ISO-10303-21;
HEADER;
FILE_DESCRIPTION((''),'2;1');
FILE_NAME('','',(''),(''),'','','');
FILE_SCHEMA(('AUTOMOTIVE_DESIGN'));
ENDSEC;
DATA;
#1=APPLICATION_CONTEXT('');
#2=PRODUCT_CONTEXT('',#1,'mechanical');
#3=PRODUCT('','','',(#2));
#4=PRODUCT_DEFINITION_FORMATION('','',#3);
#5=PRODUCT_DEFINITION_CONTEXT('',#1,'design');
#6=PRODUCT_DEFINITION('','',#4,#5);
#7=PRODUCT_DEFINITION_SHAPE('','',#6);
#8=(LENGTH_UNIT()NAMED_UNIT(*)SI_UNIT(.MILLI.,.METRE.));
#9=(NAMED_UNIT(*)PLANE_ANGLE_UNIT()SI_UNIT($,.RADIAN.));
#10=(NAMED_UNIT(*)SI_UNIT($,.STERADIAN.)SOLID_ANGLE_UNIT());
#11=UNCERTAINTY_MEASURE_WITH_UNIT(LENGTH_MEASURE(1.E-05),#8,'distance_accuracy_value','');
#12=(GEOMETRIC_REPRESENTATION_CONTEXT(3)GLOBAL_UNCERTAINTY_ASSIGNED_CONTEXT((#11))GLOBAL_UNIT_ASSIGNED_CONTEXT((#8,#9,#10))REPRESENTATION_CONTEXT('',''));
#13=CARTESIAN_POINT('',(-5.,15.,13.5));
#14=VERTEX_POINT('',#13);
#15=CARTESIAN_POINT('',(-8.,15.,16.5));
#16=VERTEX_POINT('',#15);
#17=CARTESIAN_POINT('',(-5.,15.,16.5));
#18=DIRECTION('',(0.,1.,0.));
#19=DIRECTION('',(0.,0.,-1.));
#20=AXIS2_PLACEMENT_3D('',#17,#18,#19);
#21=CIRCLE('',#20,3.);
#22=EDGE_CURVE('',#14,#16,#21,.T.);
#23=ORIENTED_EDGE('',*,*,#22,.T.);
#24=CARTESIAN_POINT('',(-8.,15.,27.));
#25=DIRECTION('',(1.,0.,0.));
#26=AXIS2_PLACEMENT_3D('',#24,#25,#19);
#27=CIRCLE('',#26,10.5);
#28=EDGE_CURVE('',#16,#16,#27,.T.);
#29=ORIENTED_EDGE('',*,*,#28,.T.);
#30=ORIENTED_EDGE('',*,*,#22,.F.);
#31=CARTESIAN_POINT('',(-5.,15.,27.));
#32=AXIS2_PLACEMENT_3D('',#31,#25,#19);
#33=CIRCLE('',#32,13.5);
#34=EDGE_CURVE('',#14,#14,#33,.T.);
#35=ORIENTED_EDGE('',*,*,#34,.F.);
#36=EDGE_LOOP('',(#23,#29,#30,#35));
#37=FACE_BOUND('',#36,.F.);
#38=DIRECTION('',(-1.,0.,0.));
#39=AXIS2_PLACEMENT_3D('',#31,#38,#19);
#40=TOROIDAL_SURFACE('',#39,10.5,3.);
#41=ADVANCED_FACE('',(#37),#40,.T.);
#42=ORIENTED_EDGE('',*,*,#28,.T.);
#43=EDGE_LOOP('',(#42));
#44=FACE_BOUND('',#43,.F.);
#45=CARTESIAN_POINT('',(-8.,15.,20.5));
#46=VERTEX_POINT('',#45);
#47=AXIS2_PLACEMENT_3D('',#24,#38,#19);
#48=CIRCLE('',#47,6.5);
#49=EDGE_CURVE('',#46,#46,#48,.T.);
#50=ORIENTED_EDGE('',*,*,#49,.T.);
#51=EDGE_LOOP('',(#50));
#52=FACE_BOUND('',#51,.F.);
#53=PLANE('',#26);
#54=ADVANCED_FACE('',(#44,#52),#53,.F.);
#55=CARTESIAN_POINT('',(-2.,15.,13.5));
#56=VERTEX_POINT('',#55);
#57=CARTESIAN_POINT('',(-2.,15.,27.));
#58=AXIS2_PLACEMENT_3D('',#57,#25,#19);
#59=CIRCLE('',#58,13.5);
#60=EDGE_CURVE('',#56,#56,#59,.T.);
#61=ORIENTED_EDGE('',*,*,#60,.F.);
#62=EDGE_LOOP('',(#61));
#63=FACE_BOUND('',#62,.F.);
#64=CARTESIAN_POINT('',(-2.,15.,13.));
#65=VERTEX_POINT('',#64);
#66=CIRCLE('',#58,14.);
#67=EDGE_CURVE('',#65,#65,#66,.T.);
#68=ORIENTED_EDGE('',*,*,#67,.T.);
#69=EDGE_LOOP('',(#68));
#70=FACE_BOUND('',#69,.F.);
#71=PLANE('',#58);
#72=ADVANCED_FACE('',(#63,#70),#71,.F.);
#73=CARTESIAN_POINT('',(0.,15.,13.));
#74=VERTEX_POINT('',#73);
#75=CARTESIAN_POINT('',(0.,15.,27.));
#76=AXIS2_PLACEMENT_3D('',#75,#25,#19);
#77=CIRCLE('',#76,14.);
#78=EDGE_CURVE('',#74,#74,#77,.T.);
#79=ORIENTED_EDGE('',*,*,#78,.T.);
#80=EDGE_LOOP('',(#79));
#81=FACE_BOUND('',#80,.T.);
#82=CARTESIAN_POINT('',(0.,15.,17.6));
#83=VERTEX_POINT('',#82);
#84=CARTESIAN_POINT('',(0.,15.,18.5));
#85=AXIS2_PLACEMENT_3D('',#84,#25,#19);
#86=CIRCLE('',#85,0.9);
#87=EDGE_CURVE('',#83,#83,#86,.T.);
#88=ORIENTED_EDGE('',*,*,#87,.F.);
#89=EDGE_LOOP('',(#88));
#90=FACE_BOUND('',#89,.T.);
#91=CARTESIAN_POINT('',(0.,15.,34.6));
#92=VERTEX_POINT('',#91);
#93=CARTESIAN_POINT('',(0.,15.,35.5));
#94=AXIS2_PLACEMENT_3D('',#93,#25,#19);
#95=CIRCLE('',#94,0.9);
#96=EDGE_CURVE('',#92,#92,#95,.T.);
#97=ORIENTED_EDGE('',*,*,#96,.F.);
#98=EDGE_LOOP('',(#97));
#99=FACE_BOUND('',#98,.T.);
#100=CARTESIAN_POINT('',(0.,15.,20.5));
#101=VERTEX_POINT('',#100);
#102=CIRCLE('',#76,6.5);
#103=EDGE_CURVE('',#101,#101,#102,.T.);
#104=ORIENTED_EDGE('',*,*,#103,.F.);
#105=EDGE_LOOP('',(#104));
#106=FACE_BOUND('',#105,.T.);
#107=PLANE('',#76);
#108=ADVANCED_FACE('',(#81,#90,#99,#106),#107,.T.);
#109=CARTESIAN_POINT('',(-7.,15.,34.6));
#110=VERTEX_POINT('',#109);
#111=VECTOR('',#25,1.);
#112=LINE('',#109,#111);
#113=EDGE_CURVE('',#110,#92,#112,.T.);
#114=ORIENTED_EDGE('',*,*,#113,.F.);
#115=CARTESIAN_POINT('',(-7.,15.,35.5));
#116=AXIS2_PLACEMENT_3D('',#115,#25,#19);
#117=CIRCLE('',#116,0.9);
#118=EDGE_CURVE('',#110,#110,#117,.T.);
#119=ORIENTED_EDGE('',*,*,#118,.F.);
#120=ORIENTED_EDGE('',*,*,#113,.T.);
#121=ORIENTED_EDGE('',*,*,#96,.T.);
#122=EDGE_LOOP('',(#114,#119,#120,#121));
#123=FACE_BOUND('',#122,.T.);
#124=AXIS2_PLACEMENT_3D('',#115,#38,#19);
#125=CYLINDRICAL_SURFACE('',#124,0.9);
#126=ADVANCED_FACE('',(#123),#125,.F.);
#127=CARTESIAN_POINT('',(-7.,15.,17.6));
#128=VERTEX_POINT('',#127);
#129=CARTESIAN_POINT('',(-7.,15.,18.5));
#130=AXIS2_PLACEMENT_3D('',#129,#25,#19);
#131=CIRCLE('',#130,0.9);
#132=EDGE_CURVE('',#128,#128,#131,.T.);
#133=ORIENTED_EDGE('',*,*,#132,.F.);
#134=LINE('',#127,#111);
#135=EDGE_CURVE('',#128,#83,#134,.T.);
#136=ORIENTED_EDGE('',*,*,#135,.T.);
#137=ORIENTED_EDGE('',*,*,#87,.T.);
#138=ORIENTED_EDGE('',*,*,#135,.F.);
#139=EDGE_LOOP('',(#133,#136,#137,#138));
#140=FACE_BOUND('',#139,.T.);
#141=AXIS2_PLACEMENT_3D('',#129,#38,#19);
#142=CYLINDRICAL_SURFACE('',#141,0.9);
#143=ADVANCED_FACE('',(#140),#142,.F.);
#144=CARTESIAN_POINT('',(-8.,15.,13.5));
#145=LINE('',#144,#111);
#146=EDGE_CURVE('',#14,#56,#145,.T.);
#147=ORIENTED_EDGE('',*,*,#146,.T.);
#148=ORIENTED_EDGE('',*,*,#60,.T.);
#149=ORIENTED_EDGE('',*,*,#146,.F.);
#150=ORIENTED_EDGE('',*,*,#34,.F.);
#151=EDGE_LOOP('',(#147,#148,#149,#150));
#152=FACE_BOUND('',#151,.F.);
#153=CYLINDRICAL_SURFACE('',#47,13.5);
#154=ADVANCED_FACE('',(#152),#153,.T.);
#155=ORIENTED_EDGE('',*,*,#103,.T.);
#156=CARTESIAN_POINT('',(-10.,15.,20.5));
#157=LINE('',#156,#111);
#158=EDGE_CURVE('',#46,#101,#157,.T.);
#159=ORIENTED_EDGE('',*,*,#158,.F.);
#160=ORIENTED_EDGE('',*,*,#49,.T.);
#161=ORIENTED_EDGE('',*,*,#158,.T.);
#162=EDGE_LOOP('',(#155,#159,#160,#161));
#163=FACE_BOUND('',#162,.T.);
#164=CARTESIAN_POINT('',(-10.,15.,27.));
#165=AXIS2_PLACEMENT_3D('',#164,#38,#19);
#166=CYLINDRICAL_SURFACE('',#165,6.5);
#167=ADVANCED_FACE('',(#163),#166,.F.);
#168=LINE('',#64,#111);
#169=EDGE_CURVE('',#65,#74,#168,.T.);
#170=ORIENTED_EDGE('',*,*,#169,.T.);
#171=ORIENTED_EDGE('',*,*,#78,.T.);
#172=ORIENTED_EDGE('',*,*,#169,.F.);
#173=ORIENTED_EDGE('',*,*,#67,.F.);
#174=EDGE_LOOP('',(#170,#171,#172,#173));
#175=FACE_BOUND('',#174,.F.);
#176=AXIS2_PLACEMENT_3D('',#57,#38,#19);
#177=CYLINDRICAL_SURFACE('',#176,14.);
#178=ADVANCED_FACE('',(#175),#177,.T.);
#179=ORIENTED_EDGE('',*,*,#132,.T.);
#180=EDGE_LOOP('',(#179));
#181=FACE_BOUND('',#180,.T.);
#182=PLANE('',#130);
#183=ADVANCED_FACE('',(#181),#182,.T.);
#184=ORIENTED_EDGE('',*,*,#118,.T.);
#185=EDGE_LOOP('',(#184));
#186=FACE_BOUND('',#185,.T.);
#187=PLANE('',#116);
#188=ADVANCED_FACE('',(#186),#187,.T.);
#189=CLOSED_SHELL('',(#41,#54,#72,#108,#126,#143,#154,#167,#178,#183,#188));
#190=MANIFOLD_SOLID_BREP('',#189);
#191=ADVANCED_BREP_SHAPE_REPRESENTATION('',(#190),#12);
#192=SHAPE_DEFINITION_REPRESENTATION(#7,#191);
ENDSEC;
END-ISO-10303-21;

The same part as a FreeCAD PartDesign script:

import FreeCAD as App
import Part
import Sketcher

V = App.Vector
Q = App.Units.Quantity


def edges_at(feature, points):
    """Names of the edges that pass closest to the given points."""
    edges = feature.Shape.Edges
    near = lambda p: min(range(len(edges)), key=lambda i: edges[i].distToShape(Part.Vertex(*p))[0])
    return sorted({f"Edge{near(p) + 1}" for p in points})

doc = App.newDocument("Part")
body = doc.addObject("PartDesign::Body", "Body")

# Sketch on XY plane
sketch1 = doc.addObject("Sketcher::SketchObject", "Sketch")
body.addObject(sketch1)
sketch1.AttachmentSupport = (doc.XY_Plane, [""])
sketch1.MapMode = "FlatFace"
sketch1.addGeometry(Part.Circle(V(0, 0, 0), V(0, 0, 1), 6), False)
sketch1.addConstraint([
    Sketcher.Constraint("Coincident", 0, 3, -1, 1),
    Sketcher.Constraint("Diameter", 0, Q("13 mm")),
])
pad1 = doc.addObject("PartDesign::Pad", "Pad")
body.addObject(pad1)
pad1.Profile = sketch1
pad1.Length = 10
body2 = doc.addObject("PartDesign::Body", "Body001")
doc.recompute()

body.Placement = App.Placement(V(0, 0, 0), App.Rotation(V(0, 1, 0), 90))
boolean = doc.addObject("PartDesign::Boolean", "Boolean")
body2.addObject(boolean)
boolean.Type = "Fuse"
boolean.addObjects([body])
body3 = doc.addObject("PartDesign::Body", "Body002")
doc.recompute()

body2.Placement = App.Placement(V(-10, 15, 27), App.Rotation(V(0, 0, 1), 0))
boolean2 = doc.addObject("PartDesign::Boolean", "Boolean001")
body3.addObject(boolean2)
boolean2.Type = "Fuse"
boolean2.addObjects([body2])
body4 = doc.addObject("PartDesign::Body", "Body003")

# Sketch on XY plane
sketch2 = doc.addObject("Sketcher::SketchObject", "Sketch001")
body4.addObject(sketch2)
sketch2.AttachmentSupport = (doc.getObject("XY_Plane003"), [""])
sketch2.MapMode = "FlatFace"
sketch2.addGeometry(Part.Circle(V(0, 0, 0), V(0, 0, 1), 0.9), False)
sketch2.addConstraint([
    Sketcher.Constraint("Coincident", 0, 3, -1, 1),
    Sketcher.Constraint("Diameter", 0, Q("1.8 mm")),
])
pad2 = doc.addObject("PartDesign::Pad", "Pad001")
body4.addObject(pad2)
pad2.Profile = sketch2
pad2.Length = 7
body5 = doc.addObject("PartDesign::Body", "Body004")
doc.recompute()

body4.Placement = App.Placement(V(0, 0, 0), App.Rotation(V(0, 1, 0), 90))
boolean3 = doc.addObject("PartDesign::Boolean", "Boolean002")
body5.addObject(boolean3)
boolean3.Type = "Fuse"
boolean3.addObjects([body4])
body6 = doc.addObject("PartDesign::Body", "Body005")
doc.recompute()

body5.Placement = App.Placement(V(-7, 15, 35.5), App.Rotation(V(0, 0, 1), 0))
boolean4 = doc.addObject("PartDesign::Boolean", "Boolean003")
body6.addObject(boolean4)
boolean4.Type = "Fuse"
boolean4.addObjects([body5])
body7 = doc.addObject("PartDesign::Body", "Body006")

# Sketch on XY plane
sketch3 = doc.addObject("Sketcher::SketchObject", "Sketch002")
body7.addObject(sketch3)
sketch3.AttachmentSupport = (doc.getObject("XY_Plane006"), [""])
sketch3.MapMode = "FlatFace"
sketch3.addGeometry(Part.Circle(V(0, 0, 0), V(0, 0, 1), 0.9), False)
sketch3.addConstraint([
    Sketcher.Constraint("Coincident", 0, 3, -1, 1),
    Sketcher.Constraint("Diameter", 0, Q("1.8 mm")),
])
pad3 = doc.addObject("PartDesign::Pad", "Pad002")
body7.addObject(pad3)
pad3.Profile = sketch3
pad3.Length = 7
body8 = doc.addObject("PartDesign::Body", "Body007")
doc.recompute()

body7.Placement = App.Placement(V(0, 0, 0), App.Rotation(V(0, 1, 0), 90))
boolean5 = doc.addObject("PartDesign::Boolean", "Boolean004")
body8.addObject(boolean5)
boolean5.Type = "Fuse"
boolean5.addObjects([body7])
body9 = doc.addObject("PartDesign::Body", "Body008")
body9.AllowCompound = True
doc.recompute()

body8.Placement = App.Placement(V(-7, 15, 18.5), App.Rotation(V(0, 0, 1), 0))
boolean6 = doc.addObject("PartDesign::Boolean", "Boolean005")
body9.addObject(boolean6)
boolean6.Type = "Fuse"
boolean6.addObjects([body8])
doc.recompute()

boolean7 = doc.addObject("PartDesign::Boolean", "Boolean006")
body9.addObject(boolean7)
boolean7.Type = "Fuse"
boolean7.addObjects([body3])
doc.recompute()

boolean8 = doc.addObject("PartDesign::Boolean", "Boolean007")
body9.addObject(boolean8)
boolean8.Type = "Fuse"
boolean8.addObjects([body6])
body10 = doc.addObject("PartDesign::Body", "Body009")

# Sketch on XY plane
sketch4 = doc.addObject("Sketcher::SketchObject", "Sketch003")
body10.addObject(sketch4)
sketch4.AttachmentSupport = (doc.getObject("XY_Plane009"), [""])
sketch4.MapMode = "FlatFace"
sketch4.addGeometry(Part.Circle(V(0, 0, 0), V(0, 0, 1), 14), False)
sketch4.addConstraint([
    Sketcher.Constraint("Coincident", 0, 3, -1, 1),
    Sketcher.Constraint("Diameter", 0, Q("27 mm")),
])
pad4 = doc.addObject("PartDesign::Pad", "Pad003")
body10.addObject(pad4)
pad4.Profile = sketch4
pad4.Length = 6
body11 = doc.addObject("PartDesign::Body", "Body010")
doc.recompute()

body10.Placement = App.Placement(V(0, 0, 0), App.Rotation(V(0, 1, 0), 90))
boolean9 = doc.addObject("PartDesign::Boolean", "Boolean008")
body11.addObject(boolean9)
boolean9.Type = "Fuse"
boolean9.addObjects([body10])
body12 = doc.addObject("PartDesign::Body", "Body011")
doc.recompute()

body11.Placement = App.Placement(V(-8, 15, 27), App.Rotation(V(0, 0, 1), 0))
boolean10 = doc.addObject("PartDesign::Boolean", "Boolean009")
body12.addObject(boolean10)
boolean10.Type = "Fuse"
boolean10.addObjects([body11])
body13 = doc.addObject("PartDesign::Body", "Body012")

# Sketch on XY plane
sketch5 = doc.addObject("Sketcher::SketchObject", "Sketch004")
body13.addObject(sketch5)
sketch5.AttachmentSupport = (doc.getObject("XY_Plane012"), [""])
sketch5.MapMode = "FlatFace"
sketch5.addGeometry(Part.Circle(V(0, 0, 0), V(0, 0, 1), 14), False)
sketch5.addConstraint([
    Sketcher.Constraint("Coincident", 0, 3, -1, 1),
    Sketcher.Constraint("Diameter", 0, Q("28 mm")),
])
pad5 = doc.addObject("PartDesign::Pad", "Pad004")
body13.addObject(pad5)
pad5.Profile = sketch5
pad5.Length = 2
body14 = doc.addObject("PartDesign::Body", "Body013")
doc.recompute()

body13.Placement = App.Placement(V(0, 0, 0), App.Rotation(V(0, 1, 0), 90))
boolean11 = doc.addObject("PartDesign::Boolean", "Boolean010")
body14.addObject(boolean11)
boolean11.Type = "Fuse"
boolean11.addObjects([body13])
body15 = doc.addObject("PartDesign::Body", "Body014")
doc.recompute()

body14.Placement = App.Placement(V(-2, 15, 27), App.Rotation(V(0, 0, 1), 0))
boolean12 = doc.addObject("PartDesign::Boolean", "Boolean011")
body15.addObject(boolean12)
boolean12.Type = "Fuse"
boolean12.addObjects([body14])
doc.recompute()

boolean13 = doc.addObject("PartDesign::Boolean", "Boolean012")
body15.addObject(boolean13)
boolean13.Type = "Fuse"
boolean13.addObjects([body12])
doc.recompute()

boolean14 = doc.addObject("PartDesign::Boolean", "Boolean013")
body15.addObject(boolean14)
boolean14.Type = "Cut"
boolean14.addObjects([body9])
doc.recompute()

fillet = doc.addObject("PartDesign::Fillet", "Fillet")
body15.addObject(fillet)
fillet.Base = (boolean14, edges_at(boolean14, [(-8, 15, 40.5)]))
fillet.Radius = 3

doc.recompute()
